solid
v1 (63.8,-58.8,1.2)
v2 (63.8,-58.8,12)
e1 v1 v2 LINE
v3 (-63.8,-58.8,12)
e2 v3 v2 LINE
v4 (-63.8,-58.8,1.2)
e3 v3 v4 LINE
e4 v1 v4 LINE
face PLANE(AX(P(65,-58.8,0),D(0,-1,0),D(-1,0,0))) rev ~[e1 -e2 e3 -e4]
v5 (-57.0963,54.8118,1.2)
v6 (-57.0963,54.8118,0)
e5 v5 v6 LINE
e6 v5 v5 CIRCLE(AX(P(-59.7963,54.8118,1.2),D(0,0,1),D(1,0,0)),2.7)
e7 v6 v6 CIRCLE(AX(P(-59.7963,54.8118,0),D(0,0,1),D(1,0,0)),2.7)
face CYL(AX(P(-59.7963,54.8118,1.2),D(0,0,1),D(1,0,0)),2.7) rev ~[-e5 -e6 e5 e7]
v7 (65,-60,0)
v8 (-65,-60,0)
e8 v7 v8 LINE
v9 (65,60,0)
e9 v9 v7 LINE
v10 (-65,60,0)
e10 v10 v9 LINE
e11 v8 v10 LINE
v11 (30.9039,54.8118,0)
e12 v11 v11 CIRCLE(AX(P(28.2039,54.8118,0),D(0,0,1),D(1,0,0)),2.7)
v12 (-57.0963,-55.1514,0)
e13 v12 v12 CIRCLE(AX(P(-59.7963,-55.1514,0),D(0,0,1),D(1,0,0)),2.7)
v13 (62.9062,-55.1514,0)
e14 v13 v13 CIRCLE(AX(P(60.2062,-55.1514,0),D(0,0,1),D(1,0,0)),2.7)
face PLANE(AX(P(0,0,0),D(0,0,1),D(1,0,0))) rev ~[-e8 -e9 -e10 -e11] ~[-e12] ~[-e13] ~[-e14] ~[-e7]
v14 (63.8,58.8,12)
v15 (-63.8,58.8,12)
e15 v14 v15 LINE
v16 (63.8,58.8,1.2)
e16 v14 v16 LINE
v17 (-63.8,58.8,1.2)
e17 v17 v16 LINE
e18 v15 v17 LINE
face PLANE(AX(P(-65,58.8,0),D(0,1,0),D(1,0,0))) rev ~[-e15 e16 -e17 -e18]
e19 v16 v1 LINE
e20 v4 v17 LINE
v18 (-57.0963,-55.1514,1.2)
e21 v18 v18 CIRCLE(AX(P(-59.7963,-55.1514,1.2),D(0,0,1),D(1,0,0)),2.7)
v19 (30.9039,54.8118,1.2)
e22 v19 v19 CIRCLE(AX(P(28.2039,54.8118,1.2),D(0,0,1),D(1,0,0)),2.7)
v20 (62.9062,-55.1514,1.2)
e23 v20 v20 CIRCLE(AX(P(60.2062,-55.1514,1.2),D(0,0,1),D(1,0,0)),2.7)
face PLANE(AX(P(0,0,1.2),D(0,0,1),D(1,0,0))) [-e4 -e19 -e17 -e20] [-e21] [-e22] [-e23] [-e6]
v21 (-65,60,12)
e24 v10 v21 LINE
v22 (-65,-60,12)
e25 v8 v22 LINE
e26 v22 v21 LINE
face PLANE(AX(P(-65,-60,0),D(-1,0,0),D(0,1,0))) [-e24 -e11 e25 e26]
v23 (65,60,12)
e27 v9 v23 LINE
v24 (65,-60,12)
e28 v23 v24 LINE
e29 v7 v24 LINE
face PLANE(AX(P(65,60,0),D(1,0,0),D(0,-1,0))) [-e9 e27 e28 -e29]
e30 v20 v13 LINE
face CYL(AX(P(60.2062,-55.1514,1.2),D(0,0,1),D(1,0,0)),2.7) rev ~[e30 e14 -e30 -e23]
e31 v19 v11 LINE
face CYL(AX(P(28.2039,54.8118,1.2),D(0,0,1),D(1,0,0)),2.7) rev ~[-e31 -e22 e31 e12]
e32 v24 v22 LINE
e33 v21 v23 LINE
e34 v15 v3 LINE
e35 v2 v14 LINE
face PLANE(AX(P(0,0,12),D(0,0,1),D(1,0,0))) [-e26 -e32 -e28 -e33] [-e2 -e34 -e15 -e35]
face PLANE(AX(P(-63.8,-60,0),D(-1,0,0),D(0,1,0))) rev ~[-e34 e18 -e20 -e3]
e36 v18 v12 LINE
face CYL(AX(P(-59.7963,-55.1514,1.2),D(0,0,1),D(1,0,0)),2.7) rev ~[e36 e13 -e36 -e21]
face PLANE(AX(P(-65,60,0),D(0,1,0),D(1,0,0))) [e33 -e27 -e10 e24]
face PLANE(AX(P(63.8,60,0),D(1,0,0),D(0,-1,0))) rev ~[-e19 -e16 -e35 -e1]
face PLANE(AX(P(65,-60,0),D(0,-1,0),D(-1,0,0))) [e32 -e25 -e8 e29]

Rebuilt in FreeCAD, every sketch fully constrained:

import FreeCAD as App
import Part
import Sketcher


def faces_at(feature, points):
    """Names of the faces that lie closest to the given points."""
    faces = feature.Shape.Faces
    near = lambda p: min(range(len(faces)), key=lambda i: faces[i].distToShape(Part.Vertex(*p))[0])
    return sorted({f"Face{near(p) + 1}" for p in points})

doc = App.newDocument("Part")
body = doc.addObject("PartDesign::Body", "Body")

sketch1 = doc.addObject("Sketcher::SketchObject", "Sketch")
body.addObject(sketch1)
sketch1.AttachmentSupport = (doc.XY_Plane, [""])
sketch1.MapMode = "FlatFace"
sketch1.addGeometry(Part.LineSegment(App.Vector(-65, -60, 0), App.Vector(65, -60, 0)), False)
sketch1.addGeometry(Part.LineSegment(App.Vector(65, -60, 0), App.Vector(65, 60, 0)), False)
sketch1.addGeometry(Part.LineSegment(App.Vector(65, 60, 0), App.Vector(-65, 60, 0)), False)
sketch1.addGeometry(Part.LineSegment(App.Vector(-65, 60, 0), App.Vector(-65, -60, 0)), False)
sketch1.addConstraint(Sketcher.Constraint("Coincident", 0, 2, 1, 1))
sketch1.addConstraint(Sketcher.Constraint("Coincident", 1, 2, 2, 1))
sketch1.addConstraint(Sketcher.Constraint("Coincident", 2, 2, 3, 1))
sketch1.addConstraint(Sketcher.Constraint("Coincident", 3, 2, 0, 1))
sketch1.addConstraint(Sketcher.Constraint("Horizontal", 0))
sketch1.addConstraint(Sketcher.Constraint("Vertical", 1))
sketch1.addConstraint(Sketcher.Constraint("Horizontal", 2))
sketch1.addConstraint(Sketcher.Constraint("Vertical", 3))
sketch1.addConstraint(Sketcher.Constraint("Symmetric", 0, 2, 2, 2, -1, 1))
sketch1.addConstraint(Sketcher.Constraint("DistanceX", 0, 1, 0, 2, 130.0))
sketch1.addConstraint(Sketcher.Constraint("DistanceY", 1, 1, 1, 2, 120.0))
pad1 = doc.addObject("PartDesign::Pad", "Pad")
body.addObject(pad1)
pad1.Profile = sketch1
pad1.Length = 12
doc.recompute()

thickness = doc.addObject("PartDesign::Thickness", "Thickness")
body.addObject(thickness)
thickness.Base = (pad1, faces_at(pad1, [(21.667, 20, 12)]))
thickness.Value = 1.2
thickness.Reversed = True
thickness.Join = "Intersection"

sketch2 = doc.addObject("Sketcher::SketchObject", "Sketch001")
body.addObject(sketch2)
sketch2.AttachmentSupport = (doc.XY_Plane, [""])
sketch2.MapMode = "FlatFace"
sketch2.AttachmentOffset = App.Placement(App.Vector(0, 0, 1.2), App.Rotation())
sketch2.addGeometry(Part.Circle(App.Vector(28.2, 54.8, 0), App.Vector(0, 0, 1), 2.7), False)
sketch2.addGeometry(Part.Circle(App.Vector(-59.8, -55.2, 0), App.Vector(0, 0, 1), 2.7), False)
sketch2.addGeometry(Part.Circle(App.Vector(-59.8, 54.8, 0), App.Vector(0, 0, 1), 2.7), False)
sketch2.addGeometry(Part.Circle(App.Vector(60.2, -55.2, 0), App.Vector(0, 0, 1), 2.7), False)
sketch2.addConstraint(Sketcher.Constraint("Equal", 0, 1))
sketch2.addConstraint(Sketcher.Constraint("Equal", 1, 2))
sketch2.addConstraint(Sketcher.Constraint("Equal", 2, 3))
sketch2.addConstraint(Sketcher.Constraint("Horizontal", 0, 3, 2, 3))
sketch2.addConstraint(Sketcher.Constraint("Horizontal", 1, 3, 3, 3))
sketch2.addConstraint(Sketcher.Constraint("Vertical", 1, 3, 2, 3))
sketch2.addConstraint(Sketcher.Constraint("Diameter", 0, 5.4))
sketch2.addConstraint(Sketcher.Constraint("DistanceX", -1, 1, 0, 3, 28.204))
sketch2.addConstraint(Sketcher.Constraint("DistanceY", -1, 1, 0, 3, 54.8118))
sketch2.addConstraint(Sketcher.Constraint("DistanceX", 1, 3, -1, 1, 59.7963))
sketch2.addConstraint(Sketcher.Constraint("DistanceY", 1, 3, -1, 1, 55.1514))
sketch2.addConstraint(Sketcher.Constraint("DistanceX", -1, 1, 3, 3, 60.2062))
pocket1 = doc.addObject("PartDesign::Pocket", "Pocket")
body.addObject(pocket1)
pocket1.Profile = sketch2
pocket1.Length = 12

doc.recompute()
